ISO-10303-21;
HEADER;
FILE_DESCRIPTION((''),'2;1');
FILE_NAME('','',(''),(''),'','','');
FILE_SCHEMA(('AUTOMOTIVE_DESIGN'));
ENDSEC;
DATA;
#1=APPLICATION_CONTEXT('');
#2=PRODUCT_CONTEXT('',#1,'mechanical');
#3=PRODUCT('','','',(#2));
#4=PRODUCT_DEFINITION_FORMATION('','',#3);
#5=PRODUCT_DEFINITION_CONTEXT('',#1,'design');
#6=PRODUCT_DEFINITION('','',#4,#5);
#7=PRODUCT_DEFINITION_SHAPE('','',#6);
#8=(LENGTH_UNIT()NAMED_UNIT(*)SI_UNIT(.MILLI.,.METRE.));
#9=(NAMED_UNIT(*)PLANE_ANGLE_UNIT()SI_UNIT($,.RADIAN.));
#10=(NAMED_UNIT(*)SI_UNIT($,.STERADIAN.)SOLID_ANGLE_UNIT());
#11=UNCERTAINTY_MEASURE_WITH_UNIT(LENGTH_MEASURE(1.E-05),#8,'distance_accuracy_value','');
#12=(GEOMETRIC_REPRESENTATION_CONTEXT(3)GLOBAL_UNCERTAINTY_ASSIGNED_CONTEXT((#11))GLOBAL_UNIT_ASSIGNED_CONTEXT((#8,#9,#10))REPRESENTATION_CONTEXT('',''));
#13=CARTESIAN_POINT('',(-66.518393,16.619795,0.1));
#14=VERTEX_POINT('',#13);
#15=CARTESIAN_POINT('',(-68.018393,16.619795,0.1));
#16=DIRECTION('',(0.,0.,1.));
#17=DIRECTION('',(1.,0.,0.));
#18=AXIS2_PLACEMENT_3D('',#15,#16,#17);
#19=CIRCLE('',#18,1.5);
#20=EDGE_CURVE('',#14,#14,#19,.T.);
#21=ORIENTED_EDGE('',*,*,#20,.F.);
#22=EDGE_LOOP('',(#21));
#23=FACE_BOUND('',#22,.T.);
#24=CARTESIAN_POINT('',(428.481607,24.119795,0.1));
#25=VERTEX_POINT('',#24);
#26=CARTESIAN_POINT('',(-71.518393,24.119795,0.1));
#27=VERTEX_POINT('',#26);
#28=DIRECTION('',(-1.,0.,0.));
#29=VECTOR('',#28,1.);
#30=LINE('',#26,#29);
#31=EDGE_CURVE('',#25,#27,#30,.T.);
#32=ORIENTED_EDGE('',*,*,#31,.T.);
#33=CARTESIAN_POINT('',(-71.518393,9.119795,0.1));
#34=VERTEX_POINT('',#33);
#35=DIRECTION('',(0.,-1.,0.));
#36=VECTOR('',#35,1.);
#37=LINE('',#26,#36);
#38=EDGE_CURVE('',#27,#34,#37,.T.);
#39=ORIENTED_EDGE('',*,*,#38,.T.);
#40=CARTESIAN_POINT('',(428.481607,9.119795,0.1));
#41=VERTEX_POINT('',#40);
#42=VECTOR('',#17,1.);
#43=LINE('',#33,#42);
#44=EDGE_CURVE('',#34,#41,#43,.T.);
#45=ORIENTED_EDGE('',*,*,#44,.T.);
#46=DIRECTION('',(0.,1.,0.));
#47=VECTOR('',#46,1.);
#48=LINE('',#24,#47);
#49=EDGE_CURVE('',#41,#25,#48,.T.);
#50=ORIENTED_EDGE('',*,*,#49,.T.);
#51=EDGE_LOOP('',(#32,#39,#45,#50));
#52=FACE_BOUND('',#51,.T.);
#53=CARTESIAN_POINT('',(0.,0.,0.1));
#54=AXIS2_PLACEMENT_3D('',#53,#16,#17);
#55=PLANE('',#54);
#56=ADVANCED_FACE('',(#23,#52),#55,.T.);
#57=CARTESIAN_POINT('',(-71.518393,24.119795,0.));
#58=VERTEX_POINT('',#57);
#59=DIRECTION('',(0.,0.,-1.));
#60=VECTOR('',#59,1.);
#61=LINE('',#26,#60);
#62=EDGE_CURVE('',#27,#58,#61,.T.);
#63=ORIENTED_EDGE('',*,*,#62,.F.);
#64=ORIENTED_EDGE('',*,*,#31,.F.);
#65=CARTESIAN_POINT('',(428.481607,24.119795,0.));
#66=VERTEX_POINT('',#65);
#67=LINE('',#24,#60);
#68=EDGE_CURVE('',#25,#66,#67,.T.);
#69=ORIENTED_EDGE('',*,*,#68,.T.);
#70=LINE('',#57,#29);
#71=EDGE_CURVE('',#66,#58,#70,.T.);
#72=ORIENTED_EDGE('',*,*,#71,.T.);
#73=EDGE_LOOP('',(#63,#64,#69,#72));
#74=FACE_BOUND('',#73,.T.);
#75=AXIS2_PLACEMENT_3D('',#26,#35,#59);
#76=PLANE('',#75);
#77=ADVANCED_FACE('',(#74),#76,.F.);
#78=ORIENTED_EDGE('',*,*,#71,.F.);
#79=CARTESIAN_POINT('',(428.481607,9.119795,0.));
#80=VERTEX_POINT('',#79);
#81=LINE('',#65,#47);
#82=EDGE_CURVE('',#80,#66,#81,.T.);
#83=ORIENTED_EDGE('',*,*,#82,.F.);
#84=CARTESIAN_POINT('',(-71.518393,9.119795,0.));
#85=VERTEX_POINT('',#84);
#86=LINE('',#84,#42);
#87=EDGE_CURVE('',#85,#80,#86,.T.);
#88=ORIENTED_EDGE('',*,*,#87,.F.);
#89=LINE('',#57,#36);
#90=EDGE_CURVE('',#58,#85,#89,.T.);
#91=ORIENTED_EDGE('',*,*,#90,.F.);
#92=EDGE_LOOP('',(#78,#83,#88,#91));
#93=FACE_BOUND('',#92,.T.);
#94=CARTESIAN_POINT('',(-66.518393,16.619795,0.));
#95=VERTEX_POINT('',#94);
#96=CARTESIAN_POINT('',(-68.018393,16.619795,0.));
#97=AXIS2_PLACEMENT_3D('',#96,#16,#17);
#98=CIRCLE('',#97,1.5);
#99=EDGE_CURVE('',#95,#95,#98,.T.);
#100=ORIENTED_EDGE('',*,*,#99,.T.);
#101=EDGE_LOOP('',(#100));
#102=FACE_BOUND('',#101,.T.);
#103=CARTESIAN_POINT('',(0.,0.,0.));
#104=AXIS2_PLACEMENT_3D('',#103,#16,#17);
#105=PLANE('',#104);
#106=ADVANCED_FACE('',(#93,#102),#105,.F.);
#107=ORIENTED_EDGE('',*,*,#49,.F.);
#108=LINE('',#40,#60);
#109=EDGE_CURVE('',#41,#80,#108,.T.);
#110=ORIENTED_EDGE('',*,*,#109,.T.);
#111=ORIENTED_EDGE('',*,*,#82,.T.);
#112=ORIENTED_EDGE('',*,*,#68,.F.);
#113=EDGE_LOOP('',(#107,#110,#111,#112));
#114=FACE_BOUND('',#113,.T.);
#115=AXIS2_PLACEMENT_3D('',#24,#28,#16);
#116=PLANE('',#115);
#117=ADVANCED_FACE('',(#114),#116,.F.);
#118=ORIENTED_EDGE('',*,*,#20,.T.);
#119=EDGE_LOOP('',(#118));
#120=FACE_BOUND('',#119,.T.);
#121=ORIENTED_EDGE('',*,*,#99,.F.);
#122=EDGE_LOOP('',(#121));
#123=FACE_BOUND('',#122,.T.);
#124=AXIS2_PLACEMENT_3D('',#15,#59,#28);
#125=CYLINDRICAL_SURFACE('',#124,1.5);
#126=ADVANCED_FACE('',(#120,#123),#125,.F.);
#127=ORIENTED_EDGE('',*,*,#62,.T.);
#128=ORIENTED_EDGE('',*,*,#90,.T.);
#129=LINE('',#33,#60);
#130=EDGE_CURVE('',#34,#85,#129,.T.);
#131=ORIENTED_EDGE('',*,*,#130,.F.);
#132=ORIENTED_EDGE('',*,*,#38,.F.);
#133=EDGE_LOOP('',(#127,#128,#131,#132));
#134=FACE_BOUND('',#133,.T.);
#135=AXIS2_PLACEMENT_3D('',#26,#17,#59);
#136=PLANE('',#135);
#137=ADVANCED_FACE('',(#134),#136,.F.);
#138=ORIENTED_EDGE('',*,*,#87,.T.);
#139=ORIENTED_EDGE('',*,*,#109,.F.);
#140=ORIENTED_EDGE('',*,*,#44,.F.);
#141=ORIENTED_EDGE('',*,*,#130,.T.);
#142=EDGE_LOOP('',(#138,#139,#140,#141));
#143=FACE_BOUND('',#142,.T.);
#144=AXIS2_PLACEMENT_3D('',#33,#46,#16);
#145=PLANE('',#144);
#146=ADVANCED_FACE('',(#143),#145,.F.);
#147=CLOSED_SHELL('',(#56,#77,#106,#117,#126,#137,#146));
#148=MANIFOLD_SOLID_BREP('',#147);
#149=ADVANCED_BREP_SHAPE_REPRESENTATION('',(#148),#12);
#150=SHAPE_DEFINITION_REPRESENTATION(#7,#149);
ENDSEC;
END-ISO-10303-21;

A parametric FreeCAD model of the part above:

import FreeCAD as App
import Part
import Sketcher
from FreeCAD import Vector
Q = App.Units.Quantity

doc = App.newDocument("Part")
body = doc.addObject("PartDesign::Body", "Body")

# Sketch on XY plane
sketch1 = doc.addObject("Sketcher::SketchObject", "Sketch")
body.addObject(sketch1)
sketch1.AttachmentSupport = (doc.XY_Plane, [""])
sketch1.MapMode = "FlatFace"
sketch1.addGeometry([
    Part.LineSegment(Vector(-71.518393, 24.119795, 0), Vector(-71.518393, 9.119795, 0)),  # 0
    Part.LineSegment(Vector(-71.518393, 9.119795, 0), Vector(428.481607, 9.119795, 0)),  # 1
    Part.LineSegment(Vector(428.481607, 9.119795, 0), Vector(428.481607, 24.119795, 0)),  # 2
    Part.LineSegment(Vector(428.481607, 24.119795, 0), Vector(-71.518393, 24.119795, 0)),  # 3
    Part.Circle(Vector(-68.018393, 16.619795, 0), Vector(0, 0, 1), 1.5),  # 4
], False)
sketch1.addConstraint([
    Sketcher.Constraint("Coincident", 0, 2, 1, 1),
    Sketcher.Constraint("Coincident", 1, 2, 2, 1),
    Sketcher.Constraint("Coincident", 2, 2, 3, 1),
    Sketcher.Constraint("Coincident", 3, 2, 0, 1),
    Sketcher.Constraint("Vertical", 0),
    Sketcher.Constraint("Horizontal", 1),
    Sketcher.Constraint("Vertical", 2),
    Sketcher.Constraint("Horizontal", 3),
    Sketcher.Constraint("Diameter", 4, Q("3 mm")),
    Sketcher.Constraint("DistanceX", 1, 1, 1, 2, Q("500 mm")),
    Sketcher.Constraint("DistanceY", 0, 2, 0, 1, Q("15 mm")),
    Sketcher.Constraint("DistanceX", 0, 2, 4, 3, Q("3.5 mm")),
    Sketcher.Constraint("DistanceY", 0, 2, 4, 3, Q("7.5 mm")),
    Sketcher.Constraint("DistanceX", 4, 3, -1, 1, Q("68.018393 mm")),
    Sketcher.Constraint("DistanceY", -1, 1, 4, 3, Q("16.619795 mm")),
])
pad1 = doc.addObject("PartDesign::Pad", "Pad")
body.addObject(pad1)
pad1.Profile = sketch1
pad1.Length = 0.1

doc.recompute()
